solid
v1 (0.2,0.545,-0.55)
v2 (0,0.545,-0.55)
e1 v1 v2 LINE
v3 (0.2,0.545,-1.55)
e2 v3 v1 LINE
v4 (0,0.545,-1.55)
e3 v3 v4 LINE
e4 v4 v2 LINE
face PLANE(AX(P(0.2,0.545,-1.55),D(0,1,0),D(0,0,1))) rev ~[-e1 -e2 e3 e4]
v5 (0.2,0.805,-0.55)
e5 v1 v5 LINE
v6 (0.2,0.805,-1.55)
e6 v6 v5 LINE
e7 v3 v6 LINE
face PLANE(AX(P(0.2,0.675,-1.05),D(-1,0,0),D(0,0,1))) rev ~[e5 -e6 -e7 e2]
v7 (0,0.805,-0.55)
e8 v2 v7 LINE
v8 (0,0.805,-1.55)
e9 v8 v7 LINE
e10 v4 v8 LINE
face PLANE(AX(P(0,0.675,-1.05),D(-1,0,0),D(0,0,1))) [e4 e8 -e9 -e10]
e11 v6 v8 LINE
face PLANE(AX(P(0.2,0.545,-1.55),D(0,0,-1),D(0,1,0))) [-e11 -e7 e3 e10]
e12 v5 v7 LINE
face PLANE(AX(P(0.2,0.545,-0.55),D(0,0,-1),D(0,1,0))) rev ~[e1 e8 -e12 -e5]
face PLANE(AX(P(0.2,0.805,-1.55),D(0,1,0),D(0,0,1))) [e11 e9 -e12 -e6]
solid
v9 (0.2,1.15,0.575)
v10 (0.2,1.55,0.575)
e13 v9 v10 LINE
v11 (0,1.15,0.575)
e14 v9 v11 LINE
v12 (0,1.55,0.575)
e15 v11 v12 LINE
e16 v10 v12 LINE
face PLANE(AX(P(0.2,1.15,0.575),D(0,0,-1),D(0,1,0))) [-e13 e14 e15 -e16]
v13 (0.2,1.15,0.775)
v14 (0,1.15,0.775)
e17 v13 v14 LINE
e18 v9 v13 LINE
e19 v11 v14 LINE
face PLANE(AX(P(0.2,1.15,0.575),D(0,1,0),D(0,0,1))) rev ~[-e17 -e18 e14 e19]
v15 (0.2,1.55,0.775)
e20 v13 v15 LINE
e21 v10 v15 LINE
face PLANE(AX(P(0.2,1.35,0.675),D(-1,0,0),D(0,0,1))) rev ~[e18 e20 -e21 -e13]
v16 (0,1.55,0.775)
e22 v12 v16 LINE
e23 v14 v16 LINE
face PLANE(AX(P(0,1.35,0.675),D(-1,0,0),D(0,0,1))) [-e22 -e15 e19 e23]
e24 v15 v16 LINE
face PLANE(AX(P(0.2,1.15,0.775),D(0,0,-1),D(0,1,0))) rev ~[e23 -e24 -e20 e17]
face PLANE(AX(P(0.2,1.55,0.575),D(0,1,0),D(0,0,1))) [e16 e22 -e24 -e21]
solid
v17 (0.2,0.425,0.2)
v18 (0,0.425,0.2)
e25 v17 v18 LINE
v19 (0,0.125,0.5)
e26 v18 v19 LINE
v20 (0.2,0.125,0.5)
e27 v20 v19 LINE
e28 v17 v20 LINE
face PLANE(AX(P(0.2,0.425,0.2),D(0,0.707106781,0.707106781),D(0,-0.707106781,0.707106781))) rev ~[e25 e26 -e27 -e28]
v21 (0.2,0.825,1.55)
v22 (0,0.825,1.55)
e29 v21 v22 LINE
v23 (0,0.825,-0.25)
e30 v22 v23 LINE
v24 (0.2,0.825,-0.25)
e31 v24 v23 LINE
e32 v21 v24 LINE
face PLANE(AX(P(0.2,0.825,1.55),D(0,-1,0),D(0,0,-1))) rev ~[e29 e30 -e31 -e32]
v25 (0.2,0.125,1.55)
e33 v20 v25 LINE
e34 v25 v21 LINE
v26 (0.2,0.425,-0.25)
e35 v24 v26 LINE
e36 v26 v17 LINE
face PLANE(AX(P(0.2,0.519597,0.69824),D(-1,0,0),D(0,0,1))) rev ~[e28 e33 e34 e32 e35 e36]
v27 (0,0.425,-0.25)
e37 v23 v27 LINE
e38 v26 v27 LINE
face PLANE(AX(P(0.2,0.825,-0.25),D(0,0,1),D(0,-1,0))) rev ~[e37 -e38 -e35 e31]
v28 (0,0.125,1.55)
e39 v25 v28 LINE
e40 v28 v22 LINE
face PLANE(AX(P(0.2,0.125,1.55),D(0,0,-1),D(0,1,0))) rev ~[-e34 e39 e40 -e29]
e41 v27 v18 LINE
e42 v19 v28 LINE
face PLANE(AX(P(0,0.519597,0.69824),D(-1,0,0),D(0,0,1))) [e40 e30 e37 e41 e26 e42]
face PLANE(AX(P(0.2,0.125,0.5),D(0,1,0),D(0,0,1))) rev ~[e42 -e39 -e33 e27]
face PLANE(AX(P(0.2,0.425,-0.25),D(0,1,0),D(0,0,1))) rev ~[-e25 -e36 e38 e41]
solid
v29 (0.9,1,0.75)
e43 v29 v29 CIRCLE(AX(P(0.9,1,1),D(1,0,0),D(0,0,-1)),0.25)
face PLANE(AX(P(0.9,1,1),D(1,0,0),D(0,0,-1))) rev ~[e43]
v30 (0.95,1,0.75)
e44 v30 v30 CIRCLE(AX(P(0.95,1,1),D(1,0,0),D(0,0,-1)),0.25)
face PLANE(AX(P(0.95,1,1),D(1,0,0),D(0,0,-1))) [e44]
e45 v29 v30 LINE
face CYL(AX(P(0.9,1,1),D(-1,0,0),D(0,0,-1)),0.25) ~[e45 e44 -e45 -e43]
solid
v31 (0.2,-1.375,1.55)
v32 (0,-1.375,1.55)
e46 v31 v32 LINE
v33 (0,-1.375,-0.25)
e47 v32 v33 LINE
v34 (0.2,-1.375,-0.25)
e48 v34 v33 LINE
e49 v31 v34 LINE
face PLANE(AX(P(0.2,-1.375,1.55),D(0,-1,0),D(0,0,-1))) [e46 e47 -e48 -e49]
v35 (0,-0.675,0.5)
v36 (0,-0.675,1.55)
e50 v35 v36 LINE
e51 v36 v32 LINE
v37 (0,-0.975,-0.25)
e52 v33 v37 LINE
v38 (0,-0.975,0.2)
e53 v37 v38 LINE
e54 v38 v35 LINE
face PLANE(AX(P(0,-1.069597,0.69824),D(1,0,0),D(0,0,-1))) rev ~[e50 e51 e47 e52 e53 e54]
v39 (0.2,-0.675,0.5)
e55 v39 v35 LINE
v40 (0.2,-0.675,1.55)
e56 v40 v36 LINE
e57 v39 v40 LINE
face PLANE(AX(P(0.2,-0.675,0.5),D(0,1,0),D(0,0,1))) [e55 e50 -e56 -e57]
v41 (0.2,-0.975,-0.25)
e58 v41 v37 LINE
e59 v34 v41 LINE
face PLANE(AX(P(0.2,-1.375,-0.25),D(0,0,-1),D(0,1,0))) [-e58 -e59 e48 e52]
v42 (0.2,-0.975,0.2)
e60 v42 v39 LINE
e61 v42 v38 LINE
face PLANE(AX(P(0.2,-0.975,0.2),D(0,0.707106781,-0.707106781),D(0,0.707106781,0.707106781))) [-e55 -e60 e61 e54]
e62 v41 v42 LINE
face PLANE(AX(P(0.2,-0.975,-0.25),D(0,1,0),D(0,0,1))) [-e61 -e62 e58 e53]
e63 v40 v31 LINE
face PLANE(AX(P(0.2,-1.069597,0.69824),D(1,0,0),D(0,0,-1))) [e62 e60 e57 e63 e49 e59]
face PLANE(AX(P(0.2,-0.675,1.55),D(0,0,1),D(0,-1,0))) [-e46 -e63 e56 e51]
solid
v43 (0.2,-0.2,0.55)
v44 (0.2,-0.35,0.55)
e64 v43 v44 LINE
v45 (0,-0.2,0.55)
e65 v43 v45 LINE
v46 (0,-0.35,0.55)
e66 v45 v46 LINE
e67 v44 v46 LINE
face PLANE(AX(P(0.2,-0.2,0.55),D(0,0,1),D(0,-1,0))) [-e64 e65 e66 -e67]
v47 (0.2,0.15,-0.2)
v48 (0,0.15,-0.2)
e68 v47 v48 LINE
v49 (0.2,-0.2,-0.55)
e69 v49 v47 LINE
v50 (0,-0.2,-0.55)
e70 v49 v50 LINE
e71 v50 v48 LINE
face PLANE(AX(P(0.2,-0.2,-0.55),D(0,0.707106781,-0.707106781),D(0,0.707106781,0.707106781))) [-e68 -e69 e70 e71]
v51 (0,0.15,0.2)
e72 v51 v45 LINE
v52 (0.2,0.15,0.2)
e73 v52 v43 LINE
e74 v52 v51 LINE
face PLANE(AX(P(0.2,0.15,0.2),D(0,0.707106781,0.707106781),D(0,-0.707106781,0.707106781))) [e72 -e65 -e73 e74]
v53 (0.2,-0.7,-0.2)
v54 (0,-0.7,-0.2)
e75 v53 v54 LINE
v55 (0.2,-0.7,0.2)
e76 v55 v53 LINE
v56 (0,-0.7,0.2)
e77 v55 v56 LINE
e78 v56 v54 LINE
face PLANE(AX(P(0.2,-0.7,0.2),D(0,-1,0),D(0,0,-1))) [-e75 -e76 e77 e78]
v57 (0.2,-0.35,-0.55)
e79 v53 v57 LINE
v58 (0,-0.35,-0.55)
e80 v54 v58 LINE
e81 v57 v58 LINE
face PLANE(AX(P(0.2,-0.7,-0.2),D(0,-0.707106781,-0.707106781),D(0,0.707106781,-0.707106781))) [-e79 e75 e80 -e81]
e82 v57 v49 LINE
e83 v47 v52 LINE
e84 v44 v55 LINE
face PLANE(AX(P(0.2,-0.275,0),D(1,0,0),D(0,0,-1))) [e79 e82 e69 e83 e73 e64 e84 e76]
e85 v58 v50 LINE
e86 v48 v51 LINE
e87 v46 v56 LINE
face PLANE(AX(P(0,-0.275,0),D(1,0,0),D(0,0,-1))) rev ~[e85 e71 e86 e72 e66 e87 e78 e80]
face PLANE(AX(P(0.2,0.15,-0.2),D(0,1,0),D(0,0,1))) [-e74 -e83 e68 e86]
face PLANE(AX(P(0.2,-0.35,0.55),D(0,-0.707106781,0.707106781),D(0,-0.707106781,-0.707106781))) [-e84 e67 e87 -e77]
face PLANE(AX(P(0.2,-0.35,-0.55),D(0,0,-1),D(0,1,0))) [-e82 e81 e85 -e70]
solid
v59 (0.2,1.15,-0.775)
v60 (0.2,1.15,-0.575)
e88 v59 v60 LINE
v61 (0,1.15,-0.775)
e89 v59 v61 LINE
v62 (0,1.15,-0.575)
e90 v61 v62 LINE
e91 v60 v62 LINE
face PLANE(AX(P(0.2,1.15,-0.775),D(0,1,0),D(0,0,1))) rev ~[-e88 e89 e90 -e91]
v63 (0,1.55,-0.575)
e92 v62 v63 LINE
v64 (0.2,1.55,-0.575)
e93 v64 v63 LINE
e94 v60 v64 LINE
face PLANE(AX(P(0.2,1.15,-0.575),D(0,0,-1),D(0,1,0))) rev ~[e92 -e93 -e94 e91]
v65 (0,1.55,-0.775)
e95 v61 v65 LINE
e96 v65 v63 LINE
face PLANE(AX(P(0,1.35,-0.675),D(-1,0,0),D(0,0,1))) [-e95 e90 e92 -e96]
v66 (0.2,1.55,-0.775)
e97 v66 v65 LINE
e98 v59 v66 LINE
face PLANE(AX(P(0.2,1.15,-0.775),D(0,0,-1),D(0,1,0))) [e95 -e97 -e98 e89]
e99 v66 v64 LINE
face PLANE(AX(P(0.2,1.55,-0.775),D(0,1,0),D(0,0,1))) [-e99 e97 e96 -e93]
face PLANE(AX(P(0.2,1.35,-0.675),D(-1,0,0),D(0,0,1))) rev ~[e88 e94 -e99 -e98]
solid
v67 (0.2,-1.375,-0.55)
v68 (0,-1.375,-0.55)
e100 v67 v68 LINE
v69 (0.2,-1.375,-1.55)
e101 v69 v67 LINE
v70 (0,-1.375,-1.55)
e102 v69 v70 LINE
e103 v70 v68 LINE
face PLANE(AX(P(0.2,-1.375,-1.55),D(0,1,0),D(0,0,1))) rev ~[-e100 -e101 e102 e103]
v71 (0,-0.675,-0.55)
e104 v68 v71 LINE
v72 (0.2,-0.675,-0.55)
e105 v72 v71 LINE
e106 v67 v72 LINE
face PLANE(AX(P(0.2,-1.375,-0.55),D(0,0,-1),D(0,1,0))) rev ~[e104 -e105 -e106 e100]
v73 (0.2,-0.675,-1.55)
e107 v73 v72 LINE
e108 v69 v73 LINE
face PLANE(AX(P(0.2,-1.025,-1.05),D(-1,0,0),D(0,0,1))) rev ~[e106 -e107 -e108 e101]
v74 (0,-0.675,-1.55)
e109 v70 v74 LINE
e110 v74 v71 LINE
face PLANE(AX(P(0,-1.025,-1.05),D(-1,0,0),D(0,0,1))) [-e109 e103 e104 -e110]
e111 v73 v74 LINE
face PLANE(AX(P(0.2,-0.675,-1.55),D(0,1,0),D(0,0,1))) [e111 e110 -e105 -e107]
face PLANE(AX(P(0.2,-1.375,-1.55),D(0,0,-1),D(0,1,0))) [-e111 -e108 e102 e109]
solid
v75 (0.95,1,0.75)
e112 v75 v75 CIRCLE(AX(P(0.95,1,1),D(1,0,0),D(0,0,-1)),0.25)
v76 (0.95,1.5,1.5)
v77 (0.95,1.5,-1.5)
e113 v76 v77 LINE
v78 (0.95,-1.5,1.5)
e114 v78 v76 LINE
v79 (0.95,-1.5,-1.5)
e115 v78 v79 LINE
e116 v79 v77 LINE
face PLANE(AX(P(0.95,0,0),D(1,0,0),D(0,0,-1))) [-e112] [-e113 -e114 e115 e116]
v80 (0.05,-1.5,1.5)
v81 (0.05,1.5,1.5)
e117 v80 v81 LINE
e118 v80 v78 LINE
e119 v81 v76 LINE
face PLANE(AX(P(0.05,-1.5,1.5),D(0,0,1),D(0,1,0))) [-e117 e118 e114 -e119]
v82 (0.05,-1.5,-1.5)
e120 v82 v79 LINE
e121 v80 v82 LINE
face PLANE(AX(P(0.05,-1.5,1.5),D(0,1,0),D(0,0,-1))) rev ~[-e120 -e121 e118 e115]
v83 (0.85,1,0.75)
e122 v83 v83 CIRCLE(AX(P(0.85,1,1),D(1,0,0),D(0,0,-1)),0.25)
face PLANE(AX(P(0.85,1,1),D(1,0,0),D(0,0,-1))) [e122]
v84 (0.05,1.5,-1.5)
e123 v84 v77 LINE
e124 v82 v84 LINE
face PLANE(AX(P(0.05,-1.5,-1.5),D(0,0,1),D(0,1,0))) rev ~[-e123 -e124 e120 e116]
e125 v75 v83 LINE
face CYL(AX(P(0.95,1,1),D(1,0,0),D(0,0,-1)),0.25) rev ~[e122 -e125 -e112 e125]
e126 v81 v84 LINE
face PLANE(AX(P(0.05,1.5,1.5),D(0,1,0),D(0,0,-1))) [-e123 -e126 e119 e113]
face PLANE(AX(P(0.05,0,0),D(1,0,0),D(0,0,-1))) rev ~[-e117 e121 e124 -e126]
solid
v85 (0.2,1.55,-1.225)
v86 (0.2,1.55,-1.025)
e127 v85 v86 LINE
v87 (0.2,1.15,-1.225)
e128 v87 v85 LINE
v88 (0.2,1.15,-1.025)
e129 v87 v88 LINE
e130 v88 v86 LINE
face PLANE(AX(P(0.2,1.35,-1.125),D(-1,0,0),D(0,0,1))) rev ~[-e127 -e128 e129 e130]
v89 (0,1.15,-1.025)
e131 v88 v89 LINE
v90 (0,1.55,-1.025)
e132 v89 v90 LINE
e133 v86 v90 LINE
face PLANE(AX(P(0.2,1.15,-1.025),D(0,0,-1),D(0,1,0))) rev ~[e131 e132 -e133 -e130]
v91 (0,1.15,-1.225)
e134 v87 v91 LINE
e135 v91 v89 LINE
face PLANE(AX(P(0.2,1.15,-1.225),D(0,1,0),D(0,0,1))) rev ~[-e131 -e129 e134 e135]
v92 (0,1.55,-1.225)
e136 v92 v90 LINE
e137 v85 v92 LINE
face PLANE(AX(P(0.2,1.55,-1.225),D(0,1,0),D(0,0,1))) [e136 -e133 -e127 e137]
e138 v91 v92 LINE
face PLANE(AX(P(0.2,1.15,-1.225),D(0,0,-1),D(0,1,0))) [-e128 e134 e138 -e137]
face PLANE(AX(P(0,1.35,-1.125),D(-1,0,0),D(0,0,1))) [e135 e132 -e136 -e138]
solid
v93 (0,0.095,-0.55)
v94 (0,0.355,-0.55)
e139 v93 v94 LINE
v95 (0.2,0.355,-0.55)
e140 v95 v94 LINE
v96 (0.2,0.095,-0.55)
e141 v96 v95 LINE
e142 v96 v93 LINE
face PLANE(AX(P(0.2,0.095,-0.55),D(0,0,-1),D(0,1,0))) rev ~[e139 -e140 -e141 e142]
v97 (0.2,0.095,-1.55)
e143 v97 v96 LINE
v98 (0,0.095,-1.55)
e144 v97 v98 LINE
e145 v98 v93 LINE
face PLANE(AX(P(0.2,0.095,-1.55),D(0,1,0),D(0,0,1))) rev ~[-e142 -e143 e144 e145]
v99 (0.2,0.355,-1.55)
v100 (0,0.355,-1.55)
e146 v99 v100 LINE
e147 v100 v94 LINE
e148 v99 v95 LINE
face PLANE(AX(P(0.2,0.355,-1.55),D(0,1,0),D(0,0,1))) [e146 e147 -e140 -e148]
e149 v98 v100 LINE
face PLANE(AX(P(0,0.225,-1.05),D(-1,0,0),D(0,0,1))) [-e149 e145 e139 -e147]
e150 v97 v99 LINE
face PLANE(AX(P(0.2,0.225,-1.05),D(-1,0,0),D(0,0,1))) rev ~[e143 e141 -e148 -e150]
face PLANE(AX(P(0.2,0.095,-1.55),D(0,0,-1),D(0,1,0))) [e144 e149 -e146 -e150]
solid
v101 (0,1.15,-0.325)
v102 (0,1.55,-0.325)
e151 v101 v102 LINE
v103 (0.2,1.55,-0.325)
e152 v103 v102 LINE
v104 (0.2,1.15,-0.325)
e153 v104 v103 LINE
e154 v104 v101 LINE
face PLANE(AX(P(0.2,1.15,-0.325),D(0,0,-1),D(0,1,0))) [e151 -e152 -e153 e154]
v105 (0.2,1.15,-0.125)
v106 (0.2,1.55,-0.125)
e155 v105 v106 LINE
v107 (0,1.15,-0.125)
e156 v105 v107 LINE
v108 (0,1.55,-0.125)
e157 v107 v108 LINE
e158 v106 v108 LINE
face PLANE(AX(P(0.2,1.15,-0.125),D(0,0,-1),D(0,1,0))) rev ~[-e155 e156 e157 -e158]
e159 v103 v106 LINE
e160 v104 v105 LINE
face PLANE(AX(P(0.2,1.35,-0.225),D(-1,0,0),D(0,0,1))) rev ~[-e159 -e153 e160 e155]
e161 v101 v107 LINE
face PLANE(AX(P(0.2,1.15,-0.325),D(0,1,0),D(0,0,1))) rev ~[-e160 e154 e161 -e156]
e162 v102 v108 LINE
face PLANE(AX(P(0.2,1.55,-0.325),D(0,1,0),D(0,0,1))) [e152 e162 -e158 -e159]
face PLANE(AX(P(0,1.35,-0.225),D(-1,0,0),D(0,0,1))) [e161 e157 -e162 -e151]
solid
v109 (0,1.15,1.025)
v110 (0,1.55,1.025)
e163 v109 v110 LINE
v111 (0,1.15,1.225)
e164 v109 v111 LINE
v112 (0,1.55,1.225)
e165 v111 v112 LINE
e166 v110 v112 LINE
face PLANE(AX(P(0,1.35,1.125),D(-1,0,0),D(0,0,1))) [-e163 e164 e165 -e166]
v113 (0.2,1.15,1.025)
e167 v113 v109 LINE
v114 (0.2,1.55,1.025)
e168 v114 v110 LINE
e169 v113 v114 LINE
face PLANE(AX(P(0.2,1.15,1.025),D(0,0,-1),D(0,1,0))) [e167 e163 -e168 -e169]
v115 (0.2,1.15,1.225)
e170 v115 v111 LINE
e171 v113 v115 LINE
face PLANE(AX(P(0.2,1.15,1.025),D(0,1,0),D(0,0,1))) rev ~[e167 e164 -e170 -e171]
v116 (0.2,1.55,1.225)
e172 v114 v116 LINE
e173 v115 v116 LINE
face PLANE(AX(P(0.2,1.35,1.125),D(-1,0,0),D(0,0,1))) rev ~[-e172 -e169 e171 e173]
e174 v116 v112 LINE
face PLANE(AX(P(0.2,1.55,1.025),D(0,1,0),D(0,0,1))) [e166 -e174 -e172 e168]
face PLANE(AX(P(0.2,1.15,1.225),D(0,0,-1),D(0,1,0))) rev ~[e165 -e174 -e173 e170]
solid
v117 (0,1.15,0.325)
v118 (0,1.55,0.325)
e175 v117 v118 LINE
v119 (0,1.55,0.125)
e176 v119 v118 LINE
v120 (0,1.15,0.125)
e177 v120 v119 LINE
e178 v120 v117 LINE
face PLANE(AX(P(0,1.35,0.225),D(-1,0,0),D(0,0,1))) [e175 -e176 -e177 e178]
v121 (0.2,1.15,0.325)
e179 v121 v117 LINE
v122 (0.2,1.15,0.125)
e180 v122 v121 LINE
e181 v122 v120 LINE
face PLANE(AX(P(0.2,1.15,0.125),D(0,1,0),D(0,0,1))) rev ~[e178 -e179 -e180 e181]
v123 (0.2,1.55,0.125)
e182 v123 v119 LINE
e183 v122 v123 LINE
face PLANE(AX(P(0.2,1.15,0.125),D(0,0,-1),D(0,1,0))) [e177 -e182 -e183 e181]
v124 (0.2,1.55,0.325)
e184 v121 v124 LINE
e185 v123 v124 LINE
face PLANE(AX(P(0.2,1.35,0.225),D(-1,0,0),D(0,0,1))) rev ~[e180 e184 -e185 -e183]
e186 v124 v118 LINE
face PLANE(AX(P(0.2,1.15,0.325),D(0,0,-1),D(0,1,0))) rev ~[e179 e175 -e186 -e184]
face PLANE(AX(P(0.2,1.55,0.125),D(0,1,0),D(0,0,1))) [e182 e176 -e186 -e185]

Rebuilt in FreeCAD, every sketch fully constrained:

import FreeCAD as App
import Part
import Sketcher

V = App.Vector
Q = App.Units.Quantity

doc = App.newDocument("Part")
body = doc.addObject("PartDesign::Body", "Body")

# Sketch on YZ plane
sketch1 = doc.addObject("Sketcher::SketchObject", "Sketch")
body.addObject(sketch1)
sketch1.AttachmentSupport = (doc.YZ_Plane, [""])
sketch1.MapMode = "FlatFace"
sketch1.AttachmentOffset = App.Placement(V(0, 0, 0.05), App.Rotation())
sketch1.addGeometry([
    Part.LineSegment(V(1.5, 1.5, 0), V(-1.5, 1.5, 0)),
    Part.LineSegment(V(-1.5, 1.5, 0), V(-1.5, -1.5, 0)),
    Part.LineSegment(V(-1.5, -1.5, 0), V(1.5, -1.5, 0)),
    Part.LineSegment(V(1.5, -1.5, 0), V(1.5, 1.5, 0)),
], False)
sketch1.addConstraint([
    Sketcher.Constraint("Coincident", 0, 2, 1, 1),
    Sketcher.Constraint("Coincident", 1, 2, 2, 1),
    Sketcher.Constraint("Coincident", 2, 2, 3, 1),
    Sketcher.Constraint("Coincident", 3, 2, 0, 1),
    Sketcher.Constraint("Horizontal", 0),
    Sketcher.Constraint("Vertical", 1),
    Sketcher.Constraint("Horizontal", 2),
    Sketcher.Constraint("Vertical", 3),
    Sketcher.Constraint("Symmetric", 0, 2, 2, 2, -1, 1),
    Sketcher.Constraint("Equal", 2, 1),
    Sketcher.Constraint("DistanceX", 0, 2, 0, 1, 3.0),
])
pad1 = doc.addObject("PartDesign::Pad", "Pad")
body.addObject(pad1)
pad1.Profile = sketch1
pad1.Length = 0.9

# Sketch on YZ plane
sketch2 = doc.addObject("Sketcher::SketchObject", "Sketch001")
body.addObject(sketch2)
sketch2.AttachmentSupport = (doc.YZ_Plane, [""])
sketch2.MapMode = "FlatFace"
sketch2.AttachmentOffset = App.Placement(V(0, 0, 0.95), App.Rotation())
sketch2.addGeometry(Part.Circle(V(1, 1, 0), V(0, 0, 1), 0.25), False)
sketch2.addConstraint([
    Sketcher.Constraint("Diameter", 0, 0.5),
    Sketcher.Constraint("DistanceX", -1, 1, 0, 3, 1.0),
    Sketcher.Constraint("DistanceY", -1, 1, 0, 3, 1.0),
])
pocket1 = doc.addObject("PartDesign::Pocket", "Pocket")
body.addObject(pocket1)
pocket1.Profile = sketch2
pocket1.Length = 0.1
body2 = doc.addObject("PartDesign::Body", "Body001")

# Sketch on YZ plane
sketch3 = doc.addObject("Sketcher::SketchObject", "Sketch002")
body2.addObject(sketch3)
sketch3.AttachmentSupport = (doc.getObject("YZ_Plane001"), [""])
sketch3.MapMode = "FlatFace"
sketch3.AttachmentOffset = App.Placement(V(0, 0, 0.9), App.Rotation())
sketch3.addGeometry(Part.Circle(V(1, 1, 0), V(0, 0, 1), 0.25), False)
sketch3.addConstraint([
    Sketcher.Constraint("Diameter", 0, 0.5),
    Sketcher.Constraint("DistanceX", -1, 1, 0, 3, 1.0),
    Sketcher.Constraint("DistanceY", -1, 1, 0, 3, 1.0),
])
pad2 = doc.addObject("PartDesign::Pad", "Pad001")
body2.addObject(pad2)
pad2.Profile = sketch3
pad2.Length = 0.05
body3 = doc.addObject("PartDesign::Body", "Body002")

# Sketch on YZ plane
sketch4 = doc.addObject("Sketcher::SketchObject", "Sketch003")
body3.addObject(sketch4)
sketch4.AttachmentSupport = (doc.getObject("YZ_Plane002"), [""])
sketch4.MapMode = "FlatFace"
sketch4.AttachmentOffset = App.Placement(V(0, 0, 0.05), App.Rotation())
sketch4.addGeometry([
    Part.LineSegment(V(1.55, -1.23, 0), V(1.15, -1.23, 0)),
    Part.LineSegment(V(1.15, -1.23, 0), V(1.15, -1.02, 0)),
    Part.LineSegment(V(1.15, -1.02, 0), V(1.55, -1.02, 0)),
    Part.LineSegment(V(1.55, -1.02, 0), V(1.55, -1.23, 0)),
], False)
sketch4.addConstraint([
    Sketcher.Constraint("Coincident", 0, 2, 1, 1),
    Sketcher.Constraint("Coincident", 1, 2, 2, 1),
    Sketcher.Constraint("Coincident", 2, 2, 3, 1),
    Sketcher.Constraint("Coincident", 3, 2, 0, 1),
    Sketcher.Constraint("Horizontal", 0),
    Sketcher.Constraint("Vertical", 1),
    Sketcher.Constraint("Horizontal", 2),
    Sketcher.Constraint("Vertical", 3),
    Sketcher.Constraint("DistanceX", 0, 2, 0, 1, 0.4),
    Sketcher.Constraint("DistanceY", 1, 1, 1, 2, 0.2),
    Sketcher.Constraint("DistanceX", -1, 1, 0, 2, 1.15),
    Sketcher.Constraint("DistanceY", 0, 2, -1, 1, 1.225),
])
pad3 = doc.addObject("PartDesign::Pad", "Pad002")
body3.addObject(pad3)
pad3.Profile = sketch4
pad3.Type = "TwoLengths"
pad3.Length = 0.05
pad3.Length2 = 0.15
pad3.Reversed = True
body4 = doc.addObject("PartDesign::Body", "Body003")

# Sketch on YZ plane
sketch5 = doc.addObject("Sketcher::SketchObject", "Sketch004")
body4.addObject(sketch5)
sketch5.AttachmentSupport = (doc.getObject("YZ_Plane003"), [""])
sketch5.MapMode = "FlatFace"
sketch5.AttachmentOffset = App.Placement(V(0, 0, 0.05), App.Rotation())
sketch5.addGeometry([
    Part.LineSegment(V(1.55, -0.78, 0), V(1.15, -0.78, 0)),
    Part.LineSegment(V(1.15, -0.78, 0), V(1.15, -0.57, 0)),
    Part.LineSegment(V(1.15, -0.57, 0), V(1.55, -0.57, 0)),
    Part.LineSegment(V(1.55, -0.57, 0), V(1.55, -0.78, 0)),
], False)
sketch5.addConstraint([
    Sketcher.Constraint("Coincident", 0, 2, 1, 1),
    Sketcher.Constraint("Coincident", 1, 2, 2, 1),
    Sketcher.Constraint("Coincident", 2, 2, 3, 1),
    Sketcher.Constraint("Coincident", 3, 2, 0, 1),
    Sketcher.Constraint("Horizontal", 0),
    Sketcher.Constraint("Vertical", 1),
    Sketcher.Constraint("Horizontal", 2),
    Sketcher.Constraint("Vertical", 3),
    Sketcher.Constraint("DistanceX", 0, 2, 0, 1, 0.4),
    Sketcher.Constraint("DistanceY", 1, 1, 1, 2, 0.2),
    Sketcher.Constraint("DistanceX", -1, 1, 0, 2, 1.15),
    Sketcher.Constraint("DistanceY", 0, 2, -1, 1, 0.775),
])
pad4 = doc.addObject("PartDesign::Pad", "Pad003")
body4.addObject(pad4)
pad4.Profile = sketch5
pad4.Type = "TwoLengths"
pad4.Length = 0.05
pad4.Length2 = 0.15
pad4.Reversed = True
body5 = doc.addObject("PartDesign::Body", "Body004")

# Sketch on YZ plane
sketch6 = doc.addObject("Sketcher::SketchObject", "Sketch005")
body5.addObject(sketch6)
sketch6.AttachmentSupport = (doc.getObject("YZ_Plane004"), [""])
sketch6.MapMode = "FlatFace"
sketch6.AttachmentOffset = App.Placement(V(0, 0, 0.05), App.Rotation())
sketch6.addGeometry([
    Part.LineSegment(V(1.55, -0.33, 0), V(1.15, -0.33, 0)),
    Part.LineSegment(V(1.15, -0.33, 0), V(1.15, -0.12, 0)),
    Part.LineSegment(V(1.15, -0.12, 0), V(1.55, -0.12, 0)),
    Part.LineSegment(V(1.55, -0.12, 0), V(1.55, -0.33, 0)),
], False)
sketch6.addConstraint([
    Sketcher.Constraint("Coincident", 0, 2, 1, 1),
    Sketcher.Constraint("Coincident", 1, 2, 2, 1),
    Sketcher.Constraint("Coincident", 2, 2, 3, 1),
    Sketcher.Constraint("Coincident", 3, 2, 0, 1),
    Sketcher.Constraint("Horizontal", 0),
    Sketcher.Constraint("Vertical", 1),
    Sketcher.Constraint("Horizontal", 2),
    Sketcher.Constraint("Vertical", 3),
    Sketcher.Constraint("DistanceX", 0, 2, 0, 1, 0.4),
    Sketcher.Constraint("DistanceY", 1, 1, 1, 2, 0.2),
    Sketcher.Constraint("DistanceX", -1, 1, 0, 2, 1.15),
    Sketcher.Constraint("DistanceY", 0, 2, -1, 1, 0.325),
])
pad5 = doc.addObject("PartDesign::Pad", "Pad004")
body5.addObject(pad5)
pad5.Profile = sketch6
pad5.Type = "TwoLengths"
pad5.Length = 0.05
pad5.Length2 = 0.15
pad5.Reversed = True
body6 = doc.addObject("PartDesign::Body", "Body005")

# Sketch on YZ plane
sketch7 = doc.addObject("Sketcher::SketchObject", "Sketch006")
body6.addObject(sketch7)
sketch7.AttachmentSupport = (doc.getObject("YZ_Plane005"), [""])
sketch7.MapMode = "FlatFace"
sketch7.AttachmentOffset = App.Placement(V(0, 0, 0.05), App.Rotation())
sketch7.addGeometry([
    Part.LineSegment(V(1.55, 0.12, 0), V(1.15, 0.12, 0)),
    Part.LineSegment(V(1.15, 0.12, 0), V(1.15, 0.33, 0)),
    Part.LineSegment(V(1.15, 0.33, 0), V(1.55, 0.33, 0)),
    Part.LineSegment(V(1.55, 0.33, 0), V(1.55, 0.12, 0)),
], False)
sketch7.addConstraint([
    Sketcher.Constraint("Coincident", 0, 2, 1, 1),
    Sketcher.Constraint("Coincident", 1, 2, 2, 1),
    Sketcher.Constraint("Coincident", 2, 2, 3, 1),
    Sketcher.Constraint("Coincident", 3, 2, 0, 1),
    Sketcher.Constraint("Horizontal", 0),
    Sketcher.Constraint("Vertical", 1),
    Sketcher.Constraint("Horizontal", 2),
    Sketcher.Constraint("Vertical", 3),
    Sketcher.Constraint("DistanceX", 0, 2, 0, 1, 0.4),
    Sketcher.Constraint("DistanceY", 1, 1, 1, 2, 0.2),
    Sketcher.Constraint("DistanceX", -1, 1, 0, 2, 1.15),
    Sketcher.Constraint("DistanceY", -1, 1, 0, 2, 0.125),
])
pad6 = doc.addObject("PartDesign::Pad", "Pad005")
body6.addObject(pad6)
pad6.Profile = sketch7
pad6.Type = "TwoLengths"
pad6.Length = 0.05
pad6.Length2 = 0.15
pad6.Reversed = True
body7 = doc.addObject("PartDesign::Body", "Body006")

# Sketch on YZ plane
sketch8 = doc.addObject("Sketcher::SketchObject", "Sketch007")
body7.addObject(sketch8)
sketch8.AttachmentSupport = (doc.getObject("YZ_Plane006"), [""])
sketch8.MapMode = "FlatFace"
sketch8.AttachmentOffset = App.Placement(V(0, 0, 0.05), App.Rotation())
sketch8.addGeometry([
    Part.LineSegment(V(1.55, 0.57, 0), V(1.15, 0.57, 0)),
    Part.LineSegment(V(1.15, 0.57, 0), V(1.15, 0.78, 0)),
    Part.LineSegment(V(1.15, 0.78, 0), V(1.55, 0.78, 0)),
    Part.LineSegment(V(1.55, 0.78, 0), V(1.55, 0.57, 0)),
], False)
sketch8.addConstraint([
    Sketcher.Constraint("Coincident", 0, 2, 1, 1),
    Sketcher.Constraint("Coincident", 1, 2, 2, 1),
    Sketcher.Constraint("Coincident", 2, 2, 3, 1),
    Sketcher.Constraint("Coincident", 3, 2, 0, 1),
    Sketcher.Constraint("Horizontal", 0),
    Sketcher.Constraint("Vertical", 1),
    Sketcher.Constraint("Horizontal", 2),
    Sketcher.Constraint("Vertical", 3),
    Sketcher.Constraint("DistanceX", 0, 2, 0, 1, 0.4),
    Sketcher.Constraint("DistanceY", 1, 1, 1, 2, 0.2),
    Sketcher.Constraint("DistanceX", -1, 1, 0, 2, 1.15),
    Sketcher.Constraint("DistanceY", -1, 1, 0, 2, 0.575),
])
pad7 = doc.addObject("PartDesign::Pad", "Pad006")
body7.addObject(pad7)
pad7.Profile = sketch8
pad7.Type = "TwoLengths"
pad7.Length = 0.05
pad7.Length2 = 0.15
pad7.Reversed = True
body8 = doc.addObject("PartDesign::Body", "Body007")

# Sketch on YZ plane
sketch9 = doc.addObject("Sketcher::SketchObject", "Sketch008")
body8.addObject(sketch9)
sketch9.AttachmentSupport = (doc.getObject("YZ_Plane007"), [""])
sketch9.MapMode = "FlatFace"
sketch9.AttachmentOffset = App.Placement(V(0, 0, 0.05), App.Rotation())
sketch9.addGeometry([
    Part.LineSegment(V(1.55, 1.02, 0), V(1.15, 1.02, 0)),
    Part.LineSegment(V(1.15, 1.02, 0), V(1.15, 1.23, 0)),
    Part.LineSegment(V(1.15, 1.23, 0), V(1.55, 1.23, 0)),
    Part.LineSegment(V(1.55, 1.23, 0), V(1.55, 1.02, 0)),
], False)
sketch9.addConstraint([
    Sketcher.Constraint("Coincident", 0, 2, 1, 1),
    Sketcher.Constraint("Coincident", 1, 2, 2, 1),
    Sketcher.Constraint("Coincident", 2, 2, 3, 1),
    Sketcher.Constraint("Coincident", 3, 2, 0, 1),
    Sketcher.Constraint("Horizontal", 0),
    Sketcher.Constraint("Vertical", 1),
    Sketcher.Constraint("Horizontal", 2),
    Sketcher.Constraint("Vertical", 3),
    Sketcher.Constraint("DistanceX", 0, 2, 0, 1, 0.4),
    Sketcher.Constraint("DistanceY", 1, 1, 1, 2, 0.2),
    Sketcher.Constraint("DistanceX", -1, 1, 0, 2, 1.15),
    Sketcher.Constraint("DistanceY", -1, 1, 0, 2, 1.025),
])
pad8 = doc.addObject("PartDesign::Pad", "Pad007")
body8.addObject(pad8)
pad8.Profile = sketch9
pad8.Type = "TwoLengths"
pad8.Length = 0.05
pad8.Length2 = 0.15
pad8.Reversed = True
body9 = doc.addObject("PartDesign::Body", "Body008")

# Sketch on YZ plane
sketch10 = doc.addObject("Sketcher::SketchObject", "Sketch009")
body9.addObject(sketch10)
sketch10.AttachmentSupport = (doc.getObject("YZ_Plane008"), [""])
sketch10.MapMode = "FlatFace"
sketch10.AttachmentOffset = App.Placement(V(0, 0, 0.05), App.Rotation())
sketch10.addGeometry([
    Part.LineSegment(V(0.82, 1.55, 0), V(0.82, -0.25, 0)),  # 0
    Part.LineSegment(V(0.82, -0.25, 0), V(0.42, -0.25, 0)),  # 1
    Part.LineSegment(V(0.42, -0.25, 0), V(0.42, 0.2, 0)),  # 2
    Part.LineSegment(V(0.42, 0.2, 0), V(0.12, 0.5, 0)),  # 3
    Part.LineSegment(V(0.12, 0.5, 0), V(0.12, 1.55, 0)),  # 4
    Part.LineSegment(V(0.12, 1.55, 0), V(0.82, 1.55, 0)),  # 5
], False)
sketch10.addConstraint([
    Sketcher.Constraint("Coincident", 0, 2, 1, 1),
    Sketcher.Constraint("Coincident", 1, 2, 2, 1),
    Sketcher.Constraint("Coincident", 2, 2, 3, 1),
    Sketcher.Constraint("Coincident", 3, 2, 4, 1),
    Sketcher.Constraint("Coincident", 4, 2, 5, 1),
    Sketcher.Constraint("Coincident", 5, 2, 0, 1),
    Sketcher.Constraint("Vertical", 0),
    Sketcher.Constraint("Horizontal", 1),
    Sketcher.Constraint("Vertical", 2),
    Sketcher.Constraint("Vertical", 4),
    Sketcher.Constraint("Horizontal", 5),
    Sketcher.Constraint("Angle", 3, Q("135 deg")),
    Sketcher.Constraint("DistanceX", 1, 2, 1, 1, 0.4),
    Sketcher.Constraint("DistanceX", 5, 1, 5, 2, 0.7),
    Sketcher.Constraint("DistanceY", 0, 2, 0, 1, 1.8),
    Sketcher.Constraint("DistanceY", 2, 1, 2, 2, 0.45),
    Sketcher.Constraint("DistanceY", -1, 1, 2, 2, 0.2),
    Sketcher.Constraint("DistanceX", -1, 1, 0, 2, 0.825),
])
pad9 = doc.addObject("PartDesign::Pad", "Pad008")
body9.addObject(pad9)
pad9.Profile = sketch10
pad9.Type = "TwoLengths"
pad9.Length = 0.05
pad9.Length2 = 0.15
pad9.Reversed = True
body10 = doc.addObject("PartDesign::Body", "Body009")

# Sketch on YZ plane
sketch11 = doc.addObject("Sketcher::SketchObject", "Sketch010")
body10.addObject(sketch11)
sketch11.AttachmentSupport = (doc.getObject("YZ_Plane009"), [""])
sketch11.MapMode = "FlatFace"
sketch11.AttachmentOffset = App.Placement(V(0, 0, 0.05), App.Rotation())
sketch11.addGeometry([
    Part.LineSegment(V(0.15, 0.2, 0), V(0.15, -0.2, 0)),  # 0
    Part.LineSegment(V(0.15, -0.2, 0), V(-0.2, -0.55, 0)),  # 1
    Part.LineSegment(V(-0.2, -0.55, 0), V(-0.35, -0.55, 0)),  # 2
    Part.LineSegment(V(-0.35, -0.55, 0), V(-0.7, -0.2, 0)),  # 3
    Part.LineSegment(V(-0.7, -0.2, 0), V(-0.7, 0.2, 0)),  # 4
    Part.LineSegment(V(-0.7, 0.2, 0), V(-0.35, 0.55, 0)),  # 5
    Part.LineSegment(V(-0.35, 0.55, 0), V(-0.2, 0.55, 0)),  # 6
    Part.LineSegment(V(-0.2, 0.55, 0), V(0.15, 0.2, 0)),  # 7
], False)
sketch11.addConstraint([
    Sketcher.Constraint("Coincident", 0, 2, 1, 1),
    Sketcher.Constraint("Coincident", 1, 2, 2, 1),
    Sketcher.Constraint("Coincident", 2, 2, 3, 1),
    Sketcher.Constraint("Coincident", 3, 2, 4, 1),
    Sketcher.Constraint("Coincident", 4, 2, 5, 1),
    Sketcher.Constraint("Coincident", 5, 2, 6, 1),
    Sketcher.Constraint("Coincident", 6, 2, 7, 1),
    Sketcher.Constraint("Coincident", 7, 2, 0, 1),
    Sketcher.Constraint("Vertical", 0),
    Sketcher.Constraint("Horizontal", 2),
    Sketcher.Constraint("Vertical", 4),
    Sketcher.Constraint("Horizontal", 6),
    Sketcher.Constraint("Symmetric", 2, 2, 5, 2, -1),
    Sketcher.Constraint("Perpendicular", 1, 3),
    Sketcher.Constraint("Perpendicular", 3, 5),
    Sketcher.Constraint("Perpendicular", 5, 7),
    Sketcher.Constraint("Horizontal", 0, 2, 3, 2),
    Sketcher.Constraint("Horizontal", 4, 2, 7, 2),
    Sketcher.Constraint("Vertical", 1, 2, 6, 2),
    Sketcher.Constraint("DistanceY", 0, 2, 0, 1, 0.4),
    Sketcher.Constraint("DistanceX", 2, 2, 2, 1, 0.15),
    Sketcher.Constraint("DistanceX", 1, 2, -1, 1, 0.2),
    Sketcher.Constraint("DistanceX", 3, 2, -1, 1, 0.7),
])
pad10 = doc.addObject("PartDesign::Pad", "Pad009")
body10.addObject(pad10)
pad10.Profile = sketch11
pad10.Type = "TwoLengths"
pad10.Length = 0.05
pad10.Length2 = 0.15
pad10.Reversed = True
body11 = doc.addObject("PartDesign::Body", "Body010")

# Sketch on YZ plane
sketch12 = doc.addObject("Sketcher::SketchObject", "Sketch011")
body11.addObject(sketch12)
sketch12.AttachmentSupport = (doc.getObject("YZ_Plane010"), [""])
sketch12.MapMode = "FlatFace"
sketch12.AttachmentOffset = App.Placement(V(0, 0, 0.05), App.Rotation())
sketch12.addGeometry([
    Part.LineSegment(V(-1.38, 1.55, 0), V(-0.68, 1.55, 0)),  # 0
    Part.LineSegment(V(-0.68, 1.55, 0), V(-0.68, 0.5, 0)),  # 1
    Part.LineSegment(V(-0.68, 0.5, 0), V(-0.97, 0.2, 0)),  # 2
    Part.LineSegment(V(-0.97, 0.2, 0), V(-0.97, -0.25, 0)),  # 3
    Part.LineSegment(V(-0.97, -0.25, 0), V(-1.38, -0.25, 0)),  # 4
    Part.LineSegment(V(-1.38, -0.25, 0), V(-1.38, 1.55, 0)),  # 5
], False)
sketch12.addConstraint([
    Sketcher.Constraint("Coincident", 0, 2, 1, 1),
    Sketcher.Constraint("Coincident", 1, 2, 2, 1),
    Sketcher.Constraint("Coincident", 2, 2, 3, 1),
    Sketcher.Constraint("Coincident", 3, 2, 4, 1),
    Sketcher.Constraint("Coincident", 4, 2, 5, 1),
    Sketcher.Constraint("Coincident", 5, 2, 0, 1),
    Sketcher.Constraint("Horizontal", 0),
    Sketcher.Constraint("Vertical", 1),
    Sketcher.Constraint("Vertical", 3),
    Sketcher.Constraint("Horizontal", 4),
    Sketcher.Constraint("Vertical", 5),
    Sketcher.Constraint("Angle", 2, Q("-135 deg")),
    Sketcher.Constraint("DistanceX", 0, 1, 0, 2, 0.7),
    Sketcher.Constraint("DistanceX", 4, 2, 4, 1, 0.4),
    Sketcher.Constraint("DistanceY", 5, 1, 5, 2, 1.8),
    Sketcher.Constraint("DistanceY", 1, 2, 1, 1, 1.05),
    Sketcher.Constraint("DistanceY", -1, 1, 1, 2, 0.5),
    Sketcher.Constraint("DistanceX", 0, 2, -1, 1, 0.675),
])
pad11 = doc.addObject("PartDesign::Pad", "Pad010")
body11.addObject(pad11)
pad11.Profile = sketch12
pad11.Type = "TwoLengths"
pad11.Length = 0.05
pad11.Length2 = 0.15
pad11.Reversed = True
body12 = doc.addObject("PartDesign::Body", "Body011")

# Sketch on YZ plane
sketch13 = doc.addObject("Sketcher::SketchObject", "Sketch012")
body12.addObject(sketch13)
sketch13.AttachmentSupport = (doc.getObject("YZ_Plane011"), [""])
sketch13.MapMode = "FlatFace"
sketch13.AttachmentOffset = App.Placement(V(0, 0, 0.05), App.Rotation())
sketch13.addGeometry([
    Part.LineSegment(V(0.35, -1.55, 0), V(0.1, -1.55, 0)),
    Part.LineSegment(V(0.1, -1.55, 0), V(0.1, -0.55, 0)),
    Part.LineSegment(V(0.1, -0.55, 0), V(0.35, -0.55, 0)),
    Part.LineSegment(V(0.35, -0.55, 0), V(0.35, -1.55, 0)),
], False)
sketch13.addConstraint([
    Sketcher.Constraint("Coincident", 0, 2, 1, 1),
    Sketcher.Constraint("Coincident", 1, 2, 2, 1),
    Sketcher.Constraint("Coincident", 2, 2, 3, 1),
    Sketcher.Constraint("Coincident", 3, 2, 0, 1),
    Sketcher.Constraint("Horizontal", 0),
    Sketcher.Constraint("Vertical", 1),
    Sketcher.Constraint("Horizontal", 2),
    Sketcher.Constraint("Vertical", 3),
    Sketcher.Constraint("DistanceY", 1, 1, 1, 2, 1.0),
    Sketcher.Constraint("DistanceX", 0, 2, 0, 1, 0.26),
    Sketcher.Constraint("DistanceY", 0, 2, -1, 1, 1.55),
    Sketcher.Constraint("DistanceX", -1, 1, 0, 2, 0.095),
])
pad12 = doc.addObject("PartDesign::Pad", "Pad011")
body12.addObject(pad12)
pad12.Profile = sketch13
pad12.Type = "TwoLengths"
pad12.Length = 0.05
pad12.Length2 = 0.15
pad12.Reversed = True
body13 = doc.addObject("PartDesign::Body", "Body012")

# Sketch on YZ plane
sketch14 = doc.addObject("Sketcher::SketchObject", "Sketch013")
body13.addObject(sketch14)
sketch14.AttachmentSupport = (doc.getObject("YZ_Plane012"), [""])
sketch14.MapMode = "FlatFace"
sketch14.AttachmentOffset = App.Placement(V(0, 0, 0.05), App.Rotation())
sketch14.addGeometry([
    Part.LineSegment(V(0.81, -1.55, 0), V(0.55, -1.55, 0)),
    Part.LineSegment(V(0.55, -1.55, 0), V(0.55, -0.55, 0)),
    Part.LineSegment(V(0.55, -0.55, 0), V(0.81, -0.55, 0)),
    Part.LineSegment(V(0.81, -0.55, 0), V(0.81, -1.55, 0)),
], False)
sketch14.addConstraint([
    Sketcher.Constraint("Coincident", 0, 2, 1, 1),
    Sketcher.Constraint("Coincident", 1, 2, 2, 1),
    Sketcher.Constraint("Coincident", 2, 2, 3, 1),
    Sketcher.Constraint("Coincident", 3, 2, 0, 1),
    Sketcher.Constraint("Horizontal", 0),
    Sketcher.Constraint("Vertical", 1),
    Sketcher.Constraint("Horizontal", 2),
    Sketcher.Constraint("Vertical", 3),
    Sketcher.Constraint("DistanceY", 1, 1, 1, 2, 1.0),
    Sketcher.Constraint("DistanceX", 0, 2, 0, 1, 0.26),
    Sketcher.Constraint("DistanceY", 0, 2, -1, 1, 1.55),
    Sketcher.Constraint("DistanceX", -1, 1, 0, 2, 0.545),
])
pad13 = doc.addObject("PartDesign::Pad", "Pad012")
body13.addObject(pad13)
pad13.Profile = sketch14
pad13.Type = "TwoLengths"
pad13.Length = 0.05
pad13.Length2 = 0.15
pad13.Reversed = True
body14 = doc.addObject("PartDesign::Body", "Body013")

# Sketch on YZ plane
sketch15 = doc.addObject("Sketcher::SketchObject", "Sketch014")
body14.addObject(sketch15)
sketch15.AttachmentSupport = (doc.getObject("YZ_Plane013"), [""])
sketch15.MapMode = "FlatFace"
sketch15.AttachmentOffset = App.Placement(V(0, 0, 0.05), App.Rotation())
sketch15.addGeometry([
    Part.LineSegment(V(-0.7, -1.6, 0), V(-1.4, -1.6, 0)),
    Part.LineSegment(V(-1.4, -1.6, 0), V(-1.4, -0.6, 0)),
    Part.LineSegment(V(-1.4, -0.6, 0), V(-0.7, -0.6, 0)),
    Part.LineSegment(V(-0.7, -0.6, 0), V(-0.7, -1.6, 0)),
], False)
sketch15.addConstraint([
    Sketcher.Constraint("Coincident", 0, 2, 1, 1),
    Sketcher.Constraint("Coincident", 1, 2, 2, 1),
    Sketcher.Constraint("Coincident", 2, 2, 3, 1),
    Sketcher.Constraint("Coincident", 3, 2, 0, 1),
    Sketcher.Constraint("Horizontal", 0),
    Sketcher.Constraint("Vertical", 1),
    Sketcher.Constraint("Horizontal", 2),
    Sketcher.Constraint("Vertical", 3),
    Sketcher.Constraint("DistanceY", 1, 1, 1, 2, 1.0),
    Sketcher.Constraint("DistanceX", 0, 2, 0, 1, 0.7),
    Sketcher.Constraint("DistanceY", 0, 2, -1, 1, 1.55),
    Sketcher.Constraint("DistanceX", 0, 2, -1, 1, 1.375),
])
pad14 = doc.addObject("PartDesign::Pad", "Pad013")
body14.addObject(pad14)
pad14.Profile = sketch15
pad14.Type = "TwoLengths"
pad14.Length = 0.05
pad14.Length2 = 0.15
pad14.Reversed = True

doc.recompute()
